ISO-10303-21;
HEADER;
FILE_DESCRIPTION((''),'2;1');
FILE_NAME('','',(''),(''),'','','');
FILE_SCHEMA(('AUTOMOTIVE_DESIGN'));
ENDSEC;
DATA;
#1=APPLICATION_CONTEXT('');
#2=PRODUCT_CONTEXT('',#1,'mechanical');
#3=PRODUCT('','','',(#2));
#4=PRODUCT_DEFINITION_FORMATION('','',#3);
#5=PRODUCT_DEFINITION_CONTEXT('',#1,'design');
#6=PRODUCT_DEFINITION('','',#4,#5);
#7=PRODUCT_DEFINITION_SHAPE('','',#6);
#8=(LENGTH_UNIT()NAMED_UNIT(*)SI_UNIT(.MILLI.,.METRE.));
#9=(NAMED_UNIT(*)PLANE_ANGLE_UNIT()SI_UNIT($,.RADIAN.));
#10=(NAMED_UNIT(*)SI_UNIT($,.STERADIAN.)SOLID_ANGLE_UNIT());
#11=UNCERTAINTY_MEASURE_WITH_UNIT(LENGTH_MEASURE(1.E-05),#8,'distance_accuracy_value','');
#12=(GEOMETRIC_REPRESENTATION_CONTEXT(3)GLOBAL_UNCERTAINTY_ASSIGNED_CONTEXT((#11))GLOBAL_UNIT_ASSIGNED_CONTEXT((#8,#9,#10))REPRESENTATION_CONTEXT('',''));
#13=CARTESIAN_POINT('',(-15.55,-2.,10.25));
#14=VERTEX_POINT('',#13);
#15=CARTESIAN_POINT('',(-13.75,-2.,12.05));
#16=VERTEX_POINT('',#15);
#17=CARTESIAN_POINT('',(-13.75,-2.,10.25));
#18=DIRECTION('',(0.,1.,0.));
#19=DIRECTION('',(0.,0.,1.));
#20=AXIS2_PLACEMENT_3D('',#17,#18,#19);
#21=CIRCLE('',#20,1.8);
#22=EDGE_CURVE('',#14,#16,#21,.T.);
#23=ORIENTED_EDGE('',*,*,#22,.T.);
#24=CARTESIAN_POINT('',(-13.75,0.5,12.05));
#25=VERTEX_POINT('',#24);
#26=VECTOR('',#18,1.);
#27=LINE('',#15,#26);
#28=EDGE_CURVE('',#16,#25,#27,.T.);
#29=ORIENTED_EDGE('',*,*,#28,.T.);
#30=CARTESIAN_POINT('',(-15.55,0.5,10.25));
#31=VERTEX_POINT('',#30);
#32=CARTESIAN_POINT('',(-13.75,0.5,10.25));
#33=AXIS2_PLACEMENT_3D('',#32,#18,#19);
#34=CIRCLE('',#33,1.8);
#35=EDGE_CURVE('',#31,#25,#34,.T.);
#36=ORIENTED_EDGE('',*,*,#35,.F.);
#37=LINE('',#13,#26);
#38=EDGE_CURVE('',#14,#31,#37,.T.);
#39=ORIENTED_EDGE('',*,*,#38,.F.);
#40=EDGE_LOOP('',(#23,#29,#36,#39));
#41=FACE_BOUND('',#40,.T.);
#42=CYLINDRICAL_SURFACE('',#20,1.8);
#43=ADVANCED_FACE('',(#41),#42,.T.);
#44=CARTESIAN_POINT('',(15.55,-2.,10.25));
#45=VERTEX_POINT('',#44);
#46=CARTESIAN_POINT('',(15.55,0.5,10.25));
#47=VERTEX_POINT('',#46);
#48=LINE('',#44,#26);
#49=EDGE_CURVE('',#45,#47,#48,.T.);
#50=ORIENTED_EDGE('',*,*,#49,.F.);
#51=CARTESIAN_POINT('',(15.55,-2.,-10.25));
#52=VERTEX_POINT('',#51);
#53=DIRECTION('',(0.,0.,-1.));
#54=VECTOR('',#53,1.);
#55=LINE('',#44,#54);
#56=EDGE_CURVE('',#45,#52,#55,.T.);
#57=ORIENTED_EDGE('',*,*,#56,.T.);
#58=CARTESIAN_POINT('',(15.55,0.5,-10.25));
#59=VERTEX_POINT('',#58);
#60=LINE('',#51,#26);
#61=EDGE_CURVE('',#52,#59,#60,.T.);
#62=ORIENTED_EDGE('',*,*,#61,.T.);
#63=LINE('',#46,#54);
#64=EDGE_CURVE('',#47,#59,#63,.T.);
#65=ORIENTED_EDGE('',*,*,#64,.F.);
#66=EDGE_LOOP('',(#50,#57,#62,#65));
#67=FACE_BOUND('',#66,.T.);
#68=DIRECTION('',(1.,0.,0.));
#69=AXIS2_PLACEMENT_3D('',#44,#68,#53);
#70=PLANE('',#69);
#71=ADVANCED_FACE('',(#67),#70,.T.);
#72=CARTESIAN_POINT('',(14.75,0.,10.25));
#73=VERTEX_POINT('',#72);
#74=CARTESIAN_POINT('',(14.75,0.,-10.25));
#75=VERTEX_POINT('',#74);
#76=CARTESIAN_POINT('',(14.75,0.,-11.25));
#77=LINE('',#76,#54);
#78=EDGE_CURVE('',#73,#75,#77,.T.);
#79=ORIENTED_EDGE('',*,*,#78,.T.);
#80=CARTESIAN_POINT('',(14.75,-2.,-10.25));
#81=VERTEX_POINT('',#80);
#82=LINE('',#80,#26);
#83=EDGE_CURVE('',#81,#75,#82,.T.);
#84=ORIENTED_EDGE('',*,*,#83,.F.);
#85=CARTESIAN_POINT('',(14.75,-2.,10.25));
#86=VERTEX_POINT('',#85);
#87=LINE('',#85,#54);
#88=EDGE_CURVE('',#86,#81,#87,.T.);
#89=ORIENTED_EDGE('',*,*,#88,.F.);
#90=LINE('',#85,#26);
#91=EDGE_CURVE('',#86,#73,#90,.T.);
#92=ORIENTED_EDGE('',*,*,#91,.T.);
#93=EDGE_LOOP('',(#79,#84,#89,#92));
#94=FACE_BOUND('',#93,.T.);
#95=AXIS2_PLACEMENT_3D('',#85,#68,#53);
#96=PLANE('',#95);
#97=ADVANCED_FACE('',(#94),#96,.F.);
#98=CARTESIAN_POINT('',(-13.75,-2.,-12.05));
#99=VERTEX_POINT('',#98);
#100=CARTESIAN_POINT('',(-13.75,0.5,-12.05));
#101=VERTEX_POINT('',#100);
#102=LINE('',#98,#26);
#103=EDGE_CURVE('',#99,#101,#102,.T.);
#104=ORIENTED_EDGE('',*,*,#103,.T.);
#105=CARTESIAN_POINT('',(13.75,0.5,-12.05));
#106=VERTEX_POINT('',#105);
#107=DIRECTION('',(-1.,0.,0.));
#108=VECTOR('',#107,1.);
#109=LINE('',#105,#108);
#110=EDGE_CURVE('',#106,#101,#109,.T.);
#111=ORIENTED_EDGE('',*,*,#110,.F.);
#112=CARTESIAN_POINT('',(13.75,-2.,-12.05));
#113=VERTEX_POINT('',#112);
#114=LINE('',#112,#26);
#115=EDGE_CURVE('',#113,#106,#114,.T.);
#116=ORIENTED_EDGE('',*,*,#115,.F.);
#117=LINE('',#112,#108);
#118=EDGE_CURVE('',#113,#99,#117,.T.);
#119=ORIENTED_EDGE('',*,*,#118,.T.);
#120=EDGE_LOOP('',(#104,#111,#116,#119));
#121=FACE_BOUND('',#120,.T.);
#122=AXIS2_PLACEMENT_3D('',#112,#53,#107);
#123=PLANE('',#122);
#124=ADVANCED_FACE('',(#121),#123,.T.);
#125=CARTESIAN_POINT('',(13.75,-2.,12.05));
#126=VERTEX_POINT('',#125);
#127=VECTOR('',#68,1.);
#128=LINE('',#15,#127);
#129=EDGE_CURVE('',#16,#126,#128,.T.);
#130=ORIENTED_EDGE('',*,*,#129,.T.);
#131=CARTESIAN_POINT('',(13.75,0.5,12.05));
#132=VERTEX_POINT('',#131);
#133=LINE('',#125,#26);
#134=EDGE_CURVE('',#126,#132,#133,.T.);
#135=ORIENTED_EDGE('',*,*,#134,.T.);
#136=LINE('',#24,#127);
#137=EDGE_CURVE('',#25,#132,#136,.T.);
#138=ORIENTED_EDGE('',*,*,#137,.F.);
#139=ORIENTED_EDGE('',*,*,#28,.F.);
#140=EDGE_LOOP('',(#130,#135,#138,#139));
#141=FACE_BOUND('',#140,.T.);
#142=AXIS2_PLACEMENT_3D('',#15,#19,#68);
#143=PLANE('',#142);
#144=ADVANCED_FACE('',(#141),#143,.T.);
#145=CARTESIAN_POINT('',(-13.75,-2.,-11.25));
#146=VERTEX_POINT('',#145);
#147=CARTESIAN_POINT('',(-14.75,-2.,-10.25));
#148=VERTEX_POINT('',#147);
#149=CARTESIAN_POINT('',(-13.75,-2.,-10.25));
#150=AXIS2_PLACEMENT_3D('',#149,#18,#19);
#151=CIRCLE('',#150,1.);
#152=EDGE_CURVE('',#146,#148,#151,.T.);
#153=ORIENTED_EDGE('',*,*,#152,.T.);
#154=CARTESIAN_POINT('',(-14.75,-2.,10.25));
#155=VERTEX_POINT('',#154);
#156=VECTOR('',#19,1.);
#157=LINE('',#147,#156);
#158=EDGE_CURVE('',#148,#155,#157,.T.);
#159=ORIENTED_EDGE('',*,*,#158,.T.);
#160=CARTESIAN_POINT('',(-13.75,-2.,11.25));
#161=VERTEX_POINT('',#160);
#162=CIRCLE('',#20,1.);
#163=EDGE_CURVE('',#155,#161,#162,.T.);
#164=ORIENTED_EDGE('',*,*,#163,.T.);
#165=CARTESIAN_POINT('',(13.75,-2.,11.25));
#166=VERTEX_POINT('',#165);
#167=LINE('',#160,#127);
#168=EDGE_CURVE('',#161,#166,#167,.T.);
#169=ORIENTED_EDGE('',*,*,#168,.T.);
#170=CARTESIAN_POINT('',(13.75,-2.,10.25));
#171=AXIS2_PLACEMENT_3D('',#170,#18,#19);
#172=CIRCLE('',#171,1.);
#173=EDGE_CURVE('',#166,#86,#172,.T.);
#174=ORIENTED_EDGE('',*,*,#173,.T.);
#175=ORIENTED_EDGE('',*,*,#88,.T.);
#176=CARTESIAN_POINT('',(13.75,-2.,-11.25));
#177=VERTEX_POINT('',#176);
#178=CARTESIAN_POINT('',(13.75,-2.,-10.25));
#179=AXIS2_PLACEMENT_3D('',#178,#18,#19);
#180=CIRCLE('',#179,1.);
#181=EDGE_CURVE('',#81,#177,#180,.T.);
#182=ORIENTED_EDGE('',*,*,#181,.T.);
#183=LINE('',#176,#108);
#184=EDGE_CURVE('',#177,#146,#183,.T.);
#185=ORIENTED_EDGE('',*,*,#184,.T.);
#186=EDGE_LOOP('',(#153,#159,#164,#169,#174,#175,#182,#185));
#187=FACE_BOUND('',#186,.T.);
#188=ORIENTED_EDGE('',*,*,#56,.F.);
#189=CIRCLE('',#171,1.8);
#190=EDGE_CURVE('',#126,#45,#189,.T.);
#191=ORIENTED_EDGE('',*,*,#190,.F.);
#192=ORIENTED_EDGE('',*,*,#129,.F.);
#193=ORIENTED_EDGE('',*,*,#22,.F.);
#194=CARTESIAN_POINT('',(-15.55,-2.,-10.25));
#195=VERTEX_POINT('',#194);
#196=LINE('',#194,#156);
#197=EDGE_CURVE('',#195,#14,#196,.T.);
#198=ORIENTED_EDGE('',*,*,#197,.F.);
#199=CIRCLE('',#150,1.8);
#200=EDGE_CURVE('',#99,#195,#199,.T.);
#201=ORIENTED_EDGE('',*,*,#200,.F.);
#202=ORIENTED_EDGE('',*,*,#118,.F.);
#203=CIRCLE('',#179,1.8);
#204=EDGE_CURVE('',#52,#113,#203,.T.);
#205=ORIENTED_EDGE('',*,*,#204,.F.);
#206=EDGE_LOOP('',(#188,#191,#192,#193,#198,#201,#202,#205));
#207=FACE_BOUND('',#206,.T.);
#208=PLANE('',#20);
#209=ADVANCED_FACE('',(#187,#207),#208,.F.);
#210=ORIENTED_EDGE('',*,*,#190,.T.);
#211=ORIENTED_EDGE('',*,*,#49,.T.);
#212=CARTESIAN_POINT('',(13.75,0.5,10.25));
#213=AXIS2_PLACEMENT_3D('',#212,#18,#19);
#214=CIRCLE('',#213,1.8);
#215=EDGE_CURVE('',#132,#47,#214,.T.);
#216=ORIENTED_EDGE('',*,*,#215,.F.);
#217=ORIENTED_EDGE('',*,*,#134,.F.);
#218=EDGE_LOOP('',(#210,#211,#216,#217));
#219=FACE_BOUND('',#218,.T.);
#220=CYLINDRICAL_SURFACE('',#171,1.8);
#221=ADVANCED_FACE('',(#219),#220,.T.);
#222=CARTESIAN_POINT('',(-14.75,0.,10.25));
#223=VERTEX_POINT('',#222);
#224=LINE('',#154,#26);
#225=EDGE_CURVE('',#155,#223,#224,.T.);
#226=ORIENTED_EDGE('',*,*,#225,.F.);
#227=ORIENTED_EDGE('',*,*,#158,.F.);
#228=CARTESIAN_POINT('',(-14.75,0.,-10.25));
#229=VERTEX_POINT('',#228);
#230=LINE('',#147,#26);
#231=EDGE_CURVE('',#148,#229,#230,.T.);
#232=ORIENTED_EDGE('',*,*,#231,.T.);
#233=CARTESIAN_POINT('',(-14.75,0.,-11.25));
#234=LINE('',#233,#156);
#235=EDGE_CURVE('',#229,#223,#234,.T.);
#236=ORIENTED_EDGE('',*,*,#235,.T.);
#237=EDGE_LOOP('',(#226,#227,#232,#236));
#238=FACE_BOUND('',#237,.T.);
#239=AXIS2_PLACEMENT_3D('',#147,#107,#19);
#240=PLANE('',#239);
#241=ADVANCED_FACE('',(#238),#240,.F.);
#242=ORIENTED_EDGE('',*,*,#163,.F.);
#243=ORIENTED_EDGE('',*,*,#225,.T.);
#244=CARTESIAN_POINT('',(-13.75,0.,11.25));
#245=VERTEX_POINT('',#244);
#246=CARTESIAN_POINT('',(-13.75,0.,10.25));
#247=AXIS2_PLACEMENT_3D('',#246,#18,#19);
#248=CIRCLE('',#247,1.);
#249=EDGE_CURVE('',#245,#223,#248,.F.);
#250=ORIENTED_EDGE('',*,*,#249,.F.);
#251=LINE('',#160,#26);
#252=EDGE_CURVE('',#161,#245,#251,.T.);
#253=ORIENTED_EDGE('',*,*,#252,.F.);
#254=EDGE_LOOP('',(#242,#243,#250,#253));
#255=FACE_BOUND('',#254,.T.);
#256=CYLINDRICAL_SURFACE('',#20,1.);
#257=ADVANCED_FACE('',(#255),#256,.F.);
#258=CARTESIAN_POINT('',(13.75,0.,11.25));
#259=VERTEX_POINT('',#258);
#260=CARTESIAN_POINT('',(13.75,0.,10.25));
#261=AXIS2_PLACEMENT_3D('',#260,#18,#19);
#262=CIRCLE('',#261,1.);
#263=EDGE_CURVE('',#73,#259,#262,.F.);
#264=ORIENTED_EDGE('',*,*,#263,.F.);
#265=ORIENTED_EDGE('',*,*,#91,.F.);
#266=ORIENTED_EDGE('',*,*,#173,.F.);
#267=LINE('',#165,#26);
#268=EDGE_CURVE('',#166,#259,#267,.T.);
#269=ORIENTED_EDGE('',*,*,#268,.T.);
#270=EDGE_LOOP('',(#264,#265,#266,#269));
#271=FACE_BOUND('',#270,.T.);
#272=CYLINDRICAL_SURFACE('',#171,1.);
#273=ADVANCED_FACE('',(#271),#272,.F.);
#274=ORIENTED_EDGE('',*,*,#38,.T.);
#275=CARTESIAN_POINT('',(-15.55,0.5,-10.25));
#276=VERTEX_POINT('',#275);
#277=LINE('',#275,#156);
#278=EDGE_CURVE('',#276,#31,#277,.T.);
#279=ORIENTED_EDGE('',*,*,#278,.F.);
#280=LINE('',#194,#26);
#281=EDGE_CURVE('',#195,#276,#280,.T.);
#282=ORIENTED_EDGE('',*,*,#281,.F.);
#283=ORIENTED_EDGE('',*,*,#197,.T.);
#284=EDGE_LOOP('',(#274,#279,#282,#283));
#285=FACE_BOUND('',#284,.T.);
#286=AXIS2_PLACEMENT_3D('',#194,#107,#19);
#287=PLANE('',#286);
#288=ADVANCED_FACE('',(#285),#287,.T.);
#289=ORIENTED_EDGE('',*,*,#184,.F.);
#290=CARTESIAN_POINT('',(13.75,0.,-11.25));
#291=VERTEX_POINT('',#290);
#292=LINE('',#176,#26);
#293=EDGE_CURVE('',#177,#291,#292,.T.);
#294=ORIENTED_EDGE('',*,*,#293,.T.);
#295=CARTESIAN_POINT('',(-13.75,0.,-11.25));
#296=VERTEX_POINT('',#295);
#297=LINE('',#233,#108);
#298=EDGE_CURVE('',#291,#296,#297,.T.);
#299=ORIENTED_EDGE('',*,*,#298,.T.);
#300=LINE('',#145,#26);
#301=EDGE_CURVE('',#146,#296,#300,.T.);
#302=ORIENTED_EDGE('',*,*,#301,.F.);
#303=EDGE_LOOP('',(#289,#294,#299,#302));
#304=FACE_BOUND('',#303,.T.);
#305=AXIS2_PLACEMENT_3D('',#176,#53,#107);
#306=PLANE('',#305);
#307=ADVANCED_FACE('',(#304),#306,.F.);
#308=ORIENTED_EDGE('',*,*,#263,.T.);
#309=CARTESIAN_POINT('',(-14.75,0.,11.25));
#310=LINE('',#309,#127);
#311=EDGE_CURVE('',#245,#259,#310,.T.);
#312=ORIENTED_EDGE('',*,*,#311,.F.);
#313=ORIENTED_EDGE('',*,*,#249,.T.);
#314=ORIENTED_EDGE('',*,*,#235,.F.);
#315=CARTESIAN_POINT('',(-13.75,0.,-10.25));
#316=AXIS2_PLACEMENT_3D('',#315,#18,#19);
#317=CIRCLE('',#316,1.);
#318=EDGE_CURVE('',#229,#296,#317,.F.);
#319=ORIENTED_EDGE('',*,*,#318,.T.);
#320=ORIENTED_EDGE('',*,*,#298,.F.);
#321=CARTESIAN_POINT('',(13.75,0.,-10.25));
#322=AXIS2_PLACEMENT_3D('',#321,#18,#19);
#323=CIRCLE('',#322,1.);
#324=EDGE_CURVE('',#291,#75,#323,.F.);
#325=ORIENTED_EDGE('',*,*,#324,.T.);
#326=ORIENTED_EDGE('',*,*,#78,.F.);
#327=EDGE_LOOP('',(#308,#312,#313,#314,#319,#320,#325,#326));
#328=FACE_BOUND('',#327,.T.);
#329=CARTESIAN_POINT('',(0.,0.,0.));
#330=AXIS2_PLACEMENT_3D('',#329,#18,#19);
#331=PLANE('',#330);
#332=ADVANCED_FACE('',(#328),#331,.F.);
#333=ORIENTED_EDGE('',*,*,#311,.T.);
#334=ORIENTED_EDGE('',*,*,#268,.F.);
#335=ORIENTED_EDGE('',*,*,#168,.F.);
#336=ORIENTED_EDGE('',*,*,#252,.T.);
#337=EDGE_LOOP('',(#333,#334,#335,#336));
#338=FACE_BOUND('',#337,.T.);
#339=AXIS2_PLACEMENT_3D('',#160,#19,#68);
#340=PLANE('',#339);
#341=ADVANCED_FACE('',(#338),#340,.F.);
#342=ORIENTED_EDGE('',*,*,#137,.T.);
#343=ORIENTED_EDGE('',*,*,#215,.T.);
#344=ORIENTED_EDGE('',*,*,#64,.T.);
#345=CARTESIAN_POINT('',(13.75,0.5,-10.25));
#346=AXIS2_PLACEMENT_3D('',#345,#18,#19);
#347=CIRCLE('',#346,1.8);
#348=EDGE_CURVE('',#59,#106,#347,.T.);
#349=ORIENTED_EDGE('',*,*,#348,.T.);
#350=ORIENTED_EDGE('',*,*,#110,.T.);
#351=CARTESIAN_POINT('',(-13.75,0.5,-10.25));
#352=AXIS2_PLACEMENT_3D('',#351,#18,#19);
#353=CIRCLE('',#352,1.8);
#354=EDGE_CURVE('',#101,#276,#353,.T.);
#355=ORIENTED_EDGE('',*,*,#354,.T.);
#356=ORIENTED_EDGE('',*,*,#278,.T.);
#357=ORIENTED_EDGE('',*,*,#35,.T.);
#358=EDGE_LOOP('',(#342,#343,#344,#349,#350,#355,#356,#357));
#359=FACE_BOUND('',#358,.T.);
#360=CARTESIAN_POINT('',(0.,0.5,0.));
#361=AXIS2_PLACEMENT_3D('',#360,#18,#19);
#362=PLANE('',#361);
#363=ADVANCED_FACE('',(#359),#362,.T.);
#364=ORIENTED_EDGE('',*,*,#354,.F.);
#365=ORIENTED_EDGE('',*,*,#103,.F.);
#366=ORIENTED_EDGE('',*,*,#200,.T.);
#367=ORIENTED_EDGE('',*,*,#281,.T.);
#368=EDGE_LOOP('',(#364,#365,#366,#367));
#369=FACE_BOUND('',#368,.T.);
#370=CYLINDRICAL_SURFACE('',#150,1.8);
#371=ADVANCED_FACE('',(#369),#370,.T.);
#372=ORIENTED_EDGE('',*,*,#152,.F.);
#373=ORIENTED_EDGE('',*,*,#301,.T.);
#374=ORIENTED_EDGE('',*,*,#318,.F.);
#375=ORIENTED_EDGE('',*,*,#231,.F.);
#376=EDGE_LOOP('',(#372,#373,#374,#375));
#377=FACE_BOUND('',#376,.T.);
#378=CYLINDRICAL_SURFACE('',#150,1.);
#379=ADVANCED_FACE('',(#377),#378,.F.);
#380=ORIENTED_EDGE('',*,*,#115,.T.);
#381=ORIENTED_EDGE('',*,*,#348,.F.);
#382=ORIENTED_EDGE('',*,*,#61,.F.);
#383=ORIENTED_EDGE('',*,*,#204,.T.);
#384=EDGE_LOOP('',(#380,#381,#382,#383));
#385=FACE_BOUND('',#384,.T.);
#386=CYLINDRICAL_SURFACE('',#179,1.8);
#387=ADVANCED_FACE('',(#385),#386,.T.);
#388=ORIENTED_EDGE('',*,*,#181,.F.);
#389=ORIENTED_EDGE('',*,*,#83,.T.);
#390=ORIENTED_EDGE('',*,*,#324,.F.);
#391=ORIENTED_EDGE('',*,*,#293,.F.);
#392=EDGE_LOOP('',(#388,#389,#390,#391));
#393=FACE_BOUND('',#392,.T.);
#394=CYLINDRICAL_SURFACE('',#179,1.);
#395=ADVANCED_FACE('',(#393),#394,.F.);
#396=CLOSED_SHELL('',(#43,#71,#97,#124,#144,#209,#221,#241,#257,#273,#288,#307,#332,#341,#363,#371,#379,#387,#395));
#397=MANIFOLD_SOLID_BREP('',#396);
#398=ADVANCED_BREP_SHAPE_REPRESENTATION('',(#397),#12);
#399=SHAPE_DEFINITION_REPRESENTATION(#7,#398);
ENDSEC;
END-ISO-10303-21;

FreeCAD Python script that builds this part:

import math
import FreeCAD as App
import Part
import Sketcher

V = App.Vector


def edges_at(feature, points):
    """Names of the edges that pass closest to the given points."""
    edges = feature.Shape.Edges
    near = lambda p: min(range(len(edges)), key=lambda i: edges[i].distToShape(Part.Vertex(*p))[0])
    return sorted({f"Edge{near(p) + 1}" for p in points})

doc = App.newDocument("Part")
params = doc.addObject("Spreadsheet::Sheet", "Params")
for row, (alias, value) in enumerate([
    ("sketch1_width", "29.5 mm"),
    ("sketch1_height", "22.5 mm"),
    ("pad1_length", "0.5 mm"),
    ("fillet_radius", "1 mm"),
    ("sketch2_radius", "1 mm"),
    ("sketch2_radius2", "1.8 mm"),
    ("sketch2_width", "27.5 mm"),
    ("sketch2_height", "20.5 mm"),
    ("pad2_length", "2.5 mm"),
], start=1):
    params.set(f"A{row}", alias)
    params.set(f"B{row}", "=" + value)
    params.setAlias(f"B{row}", alias)

body = doc.addObject("PartDesign::Body", "Body")

# Sketch on XZ plane
sketch1 = doc.addObject("Sketcher::SketchObject", "Sketch")
body.addObject(sketch1)
sketch1.AttachmentSupport = (doc.XZ_Plane, [""])
sketch1.MapMode = "FlatFace"
sketch1.addGeometry(Part.LineSegment(V(-14.75, -11.25, 0), V(-14.75, 11.25, 0)), False)
sketch1.addGeometry(Part.LineSegment(V(-14.75, 11.25, 0), V(14.75, 11.25, 0)), False)
sketch1.addGeometry(Part.LineSegment(V(14.75, 11.25, 0), V(14.75, -11.25, 0)), False)
sketch1.addGeometry(Part.LineSegment(V(14.75, -11.25, 0), V(-14.75, -11.25, 0)), False)
sketch1.addConstraint(Sketcher.Constraint("Coincident", 0, 2, 1, 1))
sketch1.addConstraint(Sketcher.Constraint("Coincident", 1, 2, 2, 1))
sketch1.addConstraint(Sketcher.Constraint("Coincident", 2, 2, 3, 1))
sketch1.addConstraint(Sketcher.Constraint("Coincident", 3, 2, 0, 1))
sketch1.addConstraint(Sketcher.Constraint("Vertical", 0))
sketch1.addConstraint(Sketcher.Constraint("Horizontal", 1))
sketch1.addConstraint(Sketcher.Constraint("Vertical", 2))
sketch1.addConstraint(Sketcher.Constraint("Horizontal", 3))
sketch1.addConstraint(Sketcher.Constraint("Symmetric", 0, 2, 2, 2, -1, 1))
sketch1.addConstraint(Sketcher.Constraint("DistanceX", 1, 1, 1, 2, 29.5))
sketch1.addConstraint(Sketcher.Constraint("DistanceY", 0, 1, 0, 2, 22.5))
sketch1.setExpression("Constraints[9]", "Params.sketch1_width")
sketch1.setExpression("Constraints[10]", "Params.sketch1_height")
pad1 = doc.addObject("PartDesign::Pad", "Pad")
body.addObject(pad1)
pad1.Profile = sketch1
pad1.setExpression("Length", "Params.pad1_length")
pad1.Reversed = True
doc.recompute()

fillet = doc.addObject("PartDesign::Fillet", "Fillet")
body.addObject(fillet)
fillet.Base = (pad1, edges_at(pad1, [
    (14.75, 0.25, 11.25),
    (-14.75, 0.25, 11.25),
    (-14.75, 0.25, -11.25),
    (14.75, 0.25, -11.25),
]))
fillet.setExpression("Radius", "Params.fillet_radius")

# Sketch on XZ plane
sketch2 = doc.addObject("Sketcher::SketchObject", "Sketch001")
body.addObject(sketch2)
sketch2.AttachmentSupport = (doc.XZ_Plane, [""])
sketch2.MapMode = "FlatFace"
sketch2.AttachmentOffset = App.Placement(V(0, 0, -0.5), App.Rotation())
sketch2.addGeometry(Part.LineSegment(V(-13.75, 12.05, 0), V(13.75, 12.05, 0)), False)
sketch2.addGeometry(Part.ArcOfCircle(Part.Circle(V(13.75, 10.25, 0), V(0, 0, 1), 1.8), math.radians(0), math.radians(90)), False)
sketch2.addGeometry(Part.LineSegment(V(15.55, 10.25, 0), V(15.55, -10.25, 0)), False)
sketch2.addGeometry(Part.ArcOfCircle(Part.Circle(V(13.75, -10.25, 0), V(0, 0, 1), 1.8), math.radians(-90), math.radians(0)), False)
sketch2.addGeometry(Part.LineSegment(V(13.75, -12.05, 0), V(-13.75, -12.05, 0)), False)
sketch2.addGeometry(Part.ArcOfCircle(Part.Circle(V(-13.75, -10.25, 0), V(0, 0, 1), 1.8), math.radians(180), math.radians(270)), False)
sketch2.addGeometry(Part.LineSegment(V(-15.55, -10.25, 0), V(-15.55, 10.25, 0)), False)
sketch2.addGeometry(Part.ArcOfCircle(Part.Circle(V(-13.75, 10.25, 0), V(0, 0, 1), 1.8), math.radians(90), math.radians(180)), False)
sketch2.addGeometry(Part.LineSegment(V(13.75, 11.25, 0), V(-13.75, 11.25, 0)), False)
sketch2.addGeometry(Part.ArcOfCircle(Part.Circle(V(-13.75, 10.25, 0), V(0, 0, 1), 1), math.radians(90), math.radians(180)), False)
sketch2.addGeometry(Part.LineSegment(V(-14.75, 10.25, 0), V(-14.75, -10.25, 0)), False)
sketch2.addGeometry(Part.ArcOfCircle(Part.Circle(V(-13.75, -10.25, 0), V(0, 0, 1), 1), math.radians(-180), math.radians(-90)), False)
sketch2.addGeometry(Part.LineSegment(V(-13.75, -11.25, 0), V(13.75, -11.25, 0)), False)
sketch2.addGeometry(Part.ArcOfCircle(Part.Circle(V(13.75, -10.25, 0), V(0, 0, 1), 1), math.radians(-90), math.radians(0)), False)
sketch2.addGeometry(Part.LineSegment(V(14.75, -10.25, 0), V(14.75, 10.25, 0)), False)
sketch2.addGeometry(Part.ArcOfCircle(Part.Circle(V(13.75, 10.25, 0), V(0, 0, 1), 1), math.radians(0), math.radians(90)), False)
sketch2.addConstraint(Sketcher.Constraint("Tangent", 0, 2, 1, 2))
sketch2.addConstraint(Sketcher.Constraint("Tangent", 1, 1, 2, 1))
sketch2.addConstraint(Sketcher.Constraint("Tangent", 2, 2, 3, 2))
sketch2.addConstraint(Sketcher.Constraint("Tangent", 3, 1, 4, 1))
sketch2.addConstraint(Sketcher.Constraint("Tangent", 4, 2, 5, 2))
sketch2.addConstraint(Sketcher.Constraint("Tangent", 5, 1, 6, 1))
sketch2.addConstraint(Sketcher.Constraint("Tangent", 6, 2, 7, 2))
sketch2.addConstraint(Sketcher.Constraint("Tangent", 7, 1, 0, 1))
sketch2.addConstraint(Sketcher.Constraint("Tangent", 8, 2, 9, 1))
sketch2.addConstraint(Sketcher.Constraint("Tangent", 9, 2, 10, 1))
sketch2.addConstraint(Sketcher.Constraint("Tangent", 10, 2, 11, 1))
sketch2.addConstraint(Sketcher.Constraint("Tangent", 11, 2, 12, 1))
sketch2.addConstraint(Sketcher.Constraint("Tangent", 12, 2, 13, 1))
sketch2.addConstraint(Sketcher.Constraint("Tangent", 13, 2, 14, 1))
sketch2.addConstraint(Sketcher.Constraint("Tangent", 14, 2, 15, 1))
sketch2.addConstraint(Sketcher.Constraint("Tangent", 15, 2, 8, 1))
sketch2.addConstraint(Sketcher.Constraint("Horizontal", 0))
sketch2.addConstraint(Sketcher.Constraint("Vertical", 2))
sketch2.addConstraint(Sketcher.Constraint("Horizontal", 4))
sketch2.addConstraint(Sketcher.Constraint("Vertical", 6))
sketch2.addConstraint(Sketcher.Constraint("Horizontal", 8))
sketch2.addConstraint(Sketcher.Constraint("Vertical", 10))
sketch2.addConstraint(Sketcher.Constraint("Horizontal", 12))
sketch2.addConstraint(Sketcher.Constraint("Vertical", 14))
sketch2.addConstraint(Sketcher.Constraint("Coincident", 9, 3, 7, 3))
sketch2.addConstraint(Sketcher.Constraint("Coincident", 11, 3, 5, 3))
sketch2.addConstraint(Sketcher.Constraint("Coincident", 13, 3, 3, 3))
sketch2.addConstraint(Sketcher.Constraint("Equal", 1, 3))
sketch2.addConstraint(Sketcher.Constraint("Equal", 3, 5))
sketch2.addConstraint(Sketcher.Constraint("Equal", 5, 7))
sketch2.addConstraint(Sketcher.Constraint("Equal", 13, 15))
sketch2.addConstraint(Sketcher.Constraint("Symmetric", 1, 3, 5, 3, -1, 1))
sketch2.addConstraint(Sketcher.Constraint("Radius", 9, 1.0))
sketch2.addConstraint(Sketcher.Constraint("Radius", 1, 1.8))
sketch2.addConstraint(Sketcher.Constraint("DistanceX", 0, 1, 0, 2, 27.5))
sketch2.addConstraint(Sketcher.Constraint("DistanceY", 2, 2, 2, 1, 20.5))
sketch2.setExpression("Constraints[32]", "Params.sketch2_radius")
sketch2.setExpression("Constraints[33]", "Params.sketch2_radius2")
sketch2.setExpression("Constraints[34]", "Params.sketch2_width")
sketch2.setExpression("Constraints[35]", "Params.sketch2_height")
pad2 = doc.addObject("PartDesign::Pad", "Pad001")
body.addObject(pad2)
pad2.Profile = sketch2
pad2.setExpression("Length", "Params.pad2_length")

doc.recompute()
